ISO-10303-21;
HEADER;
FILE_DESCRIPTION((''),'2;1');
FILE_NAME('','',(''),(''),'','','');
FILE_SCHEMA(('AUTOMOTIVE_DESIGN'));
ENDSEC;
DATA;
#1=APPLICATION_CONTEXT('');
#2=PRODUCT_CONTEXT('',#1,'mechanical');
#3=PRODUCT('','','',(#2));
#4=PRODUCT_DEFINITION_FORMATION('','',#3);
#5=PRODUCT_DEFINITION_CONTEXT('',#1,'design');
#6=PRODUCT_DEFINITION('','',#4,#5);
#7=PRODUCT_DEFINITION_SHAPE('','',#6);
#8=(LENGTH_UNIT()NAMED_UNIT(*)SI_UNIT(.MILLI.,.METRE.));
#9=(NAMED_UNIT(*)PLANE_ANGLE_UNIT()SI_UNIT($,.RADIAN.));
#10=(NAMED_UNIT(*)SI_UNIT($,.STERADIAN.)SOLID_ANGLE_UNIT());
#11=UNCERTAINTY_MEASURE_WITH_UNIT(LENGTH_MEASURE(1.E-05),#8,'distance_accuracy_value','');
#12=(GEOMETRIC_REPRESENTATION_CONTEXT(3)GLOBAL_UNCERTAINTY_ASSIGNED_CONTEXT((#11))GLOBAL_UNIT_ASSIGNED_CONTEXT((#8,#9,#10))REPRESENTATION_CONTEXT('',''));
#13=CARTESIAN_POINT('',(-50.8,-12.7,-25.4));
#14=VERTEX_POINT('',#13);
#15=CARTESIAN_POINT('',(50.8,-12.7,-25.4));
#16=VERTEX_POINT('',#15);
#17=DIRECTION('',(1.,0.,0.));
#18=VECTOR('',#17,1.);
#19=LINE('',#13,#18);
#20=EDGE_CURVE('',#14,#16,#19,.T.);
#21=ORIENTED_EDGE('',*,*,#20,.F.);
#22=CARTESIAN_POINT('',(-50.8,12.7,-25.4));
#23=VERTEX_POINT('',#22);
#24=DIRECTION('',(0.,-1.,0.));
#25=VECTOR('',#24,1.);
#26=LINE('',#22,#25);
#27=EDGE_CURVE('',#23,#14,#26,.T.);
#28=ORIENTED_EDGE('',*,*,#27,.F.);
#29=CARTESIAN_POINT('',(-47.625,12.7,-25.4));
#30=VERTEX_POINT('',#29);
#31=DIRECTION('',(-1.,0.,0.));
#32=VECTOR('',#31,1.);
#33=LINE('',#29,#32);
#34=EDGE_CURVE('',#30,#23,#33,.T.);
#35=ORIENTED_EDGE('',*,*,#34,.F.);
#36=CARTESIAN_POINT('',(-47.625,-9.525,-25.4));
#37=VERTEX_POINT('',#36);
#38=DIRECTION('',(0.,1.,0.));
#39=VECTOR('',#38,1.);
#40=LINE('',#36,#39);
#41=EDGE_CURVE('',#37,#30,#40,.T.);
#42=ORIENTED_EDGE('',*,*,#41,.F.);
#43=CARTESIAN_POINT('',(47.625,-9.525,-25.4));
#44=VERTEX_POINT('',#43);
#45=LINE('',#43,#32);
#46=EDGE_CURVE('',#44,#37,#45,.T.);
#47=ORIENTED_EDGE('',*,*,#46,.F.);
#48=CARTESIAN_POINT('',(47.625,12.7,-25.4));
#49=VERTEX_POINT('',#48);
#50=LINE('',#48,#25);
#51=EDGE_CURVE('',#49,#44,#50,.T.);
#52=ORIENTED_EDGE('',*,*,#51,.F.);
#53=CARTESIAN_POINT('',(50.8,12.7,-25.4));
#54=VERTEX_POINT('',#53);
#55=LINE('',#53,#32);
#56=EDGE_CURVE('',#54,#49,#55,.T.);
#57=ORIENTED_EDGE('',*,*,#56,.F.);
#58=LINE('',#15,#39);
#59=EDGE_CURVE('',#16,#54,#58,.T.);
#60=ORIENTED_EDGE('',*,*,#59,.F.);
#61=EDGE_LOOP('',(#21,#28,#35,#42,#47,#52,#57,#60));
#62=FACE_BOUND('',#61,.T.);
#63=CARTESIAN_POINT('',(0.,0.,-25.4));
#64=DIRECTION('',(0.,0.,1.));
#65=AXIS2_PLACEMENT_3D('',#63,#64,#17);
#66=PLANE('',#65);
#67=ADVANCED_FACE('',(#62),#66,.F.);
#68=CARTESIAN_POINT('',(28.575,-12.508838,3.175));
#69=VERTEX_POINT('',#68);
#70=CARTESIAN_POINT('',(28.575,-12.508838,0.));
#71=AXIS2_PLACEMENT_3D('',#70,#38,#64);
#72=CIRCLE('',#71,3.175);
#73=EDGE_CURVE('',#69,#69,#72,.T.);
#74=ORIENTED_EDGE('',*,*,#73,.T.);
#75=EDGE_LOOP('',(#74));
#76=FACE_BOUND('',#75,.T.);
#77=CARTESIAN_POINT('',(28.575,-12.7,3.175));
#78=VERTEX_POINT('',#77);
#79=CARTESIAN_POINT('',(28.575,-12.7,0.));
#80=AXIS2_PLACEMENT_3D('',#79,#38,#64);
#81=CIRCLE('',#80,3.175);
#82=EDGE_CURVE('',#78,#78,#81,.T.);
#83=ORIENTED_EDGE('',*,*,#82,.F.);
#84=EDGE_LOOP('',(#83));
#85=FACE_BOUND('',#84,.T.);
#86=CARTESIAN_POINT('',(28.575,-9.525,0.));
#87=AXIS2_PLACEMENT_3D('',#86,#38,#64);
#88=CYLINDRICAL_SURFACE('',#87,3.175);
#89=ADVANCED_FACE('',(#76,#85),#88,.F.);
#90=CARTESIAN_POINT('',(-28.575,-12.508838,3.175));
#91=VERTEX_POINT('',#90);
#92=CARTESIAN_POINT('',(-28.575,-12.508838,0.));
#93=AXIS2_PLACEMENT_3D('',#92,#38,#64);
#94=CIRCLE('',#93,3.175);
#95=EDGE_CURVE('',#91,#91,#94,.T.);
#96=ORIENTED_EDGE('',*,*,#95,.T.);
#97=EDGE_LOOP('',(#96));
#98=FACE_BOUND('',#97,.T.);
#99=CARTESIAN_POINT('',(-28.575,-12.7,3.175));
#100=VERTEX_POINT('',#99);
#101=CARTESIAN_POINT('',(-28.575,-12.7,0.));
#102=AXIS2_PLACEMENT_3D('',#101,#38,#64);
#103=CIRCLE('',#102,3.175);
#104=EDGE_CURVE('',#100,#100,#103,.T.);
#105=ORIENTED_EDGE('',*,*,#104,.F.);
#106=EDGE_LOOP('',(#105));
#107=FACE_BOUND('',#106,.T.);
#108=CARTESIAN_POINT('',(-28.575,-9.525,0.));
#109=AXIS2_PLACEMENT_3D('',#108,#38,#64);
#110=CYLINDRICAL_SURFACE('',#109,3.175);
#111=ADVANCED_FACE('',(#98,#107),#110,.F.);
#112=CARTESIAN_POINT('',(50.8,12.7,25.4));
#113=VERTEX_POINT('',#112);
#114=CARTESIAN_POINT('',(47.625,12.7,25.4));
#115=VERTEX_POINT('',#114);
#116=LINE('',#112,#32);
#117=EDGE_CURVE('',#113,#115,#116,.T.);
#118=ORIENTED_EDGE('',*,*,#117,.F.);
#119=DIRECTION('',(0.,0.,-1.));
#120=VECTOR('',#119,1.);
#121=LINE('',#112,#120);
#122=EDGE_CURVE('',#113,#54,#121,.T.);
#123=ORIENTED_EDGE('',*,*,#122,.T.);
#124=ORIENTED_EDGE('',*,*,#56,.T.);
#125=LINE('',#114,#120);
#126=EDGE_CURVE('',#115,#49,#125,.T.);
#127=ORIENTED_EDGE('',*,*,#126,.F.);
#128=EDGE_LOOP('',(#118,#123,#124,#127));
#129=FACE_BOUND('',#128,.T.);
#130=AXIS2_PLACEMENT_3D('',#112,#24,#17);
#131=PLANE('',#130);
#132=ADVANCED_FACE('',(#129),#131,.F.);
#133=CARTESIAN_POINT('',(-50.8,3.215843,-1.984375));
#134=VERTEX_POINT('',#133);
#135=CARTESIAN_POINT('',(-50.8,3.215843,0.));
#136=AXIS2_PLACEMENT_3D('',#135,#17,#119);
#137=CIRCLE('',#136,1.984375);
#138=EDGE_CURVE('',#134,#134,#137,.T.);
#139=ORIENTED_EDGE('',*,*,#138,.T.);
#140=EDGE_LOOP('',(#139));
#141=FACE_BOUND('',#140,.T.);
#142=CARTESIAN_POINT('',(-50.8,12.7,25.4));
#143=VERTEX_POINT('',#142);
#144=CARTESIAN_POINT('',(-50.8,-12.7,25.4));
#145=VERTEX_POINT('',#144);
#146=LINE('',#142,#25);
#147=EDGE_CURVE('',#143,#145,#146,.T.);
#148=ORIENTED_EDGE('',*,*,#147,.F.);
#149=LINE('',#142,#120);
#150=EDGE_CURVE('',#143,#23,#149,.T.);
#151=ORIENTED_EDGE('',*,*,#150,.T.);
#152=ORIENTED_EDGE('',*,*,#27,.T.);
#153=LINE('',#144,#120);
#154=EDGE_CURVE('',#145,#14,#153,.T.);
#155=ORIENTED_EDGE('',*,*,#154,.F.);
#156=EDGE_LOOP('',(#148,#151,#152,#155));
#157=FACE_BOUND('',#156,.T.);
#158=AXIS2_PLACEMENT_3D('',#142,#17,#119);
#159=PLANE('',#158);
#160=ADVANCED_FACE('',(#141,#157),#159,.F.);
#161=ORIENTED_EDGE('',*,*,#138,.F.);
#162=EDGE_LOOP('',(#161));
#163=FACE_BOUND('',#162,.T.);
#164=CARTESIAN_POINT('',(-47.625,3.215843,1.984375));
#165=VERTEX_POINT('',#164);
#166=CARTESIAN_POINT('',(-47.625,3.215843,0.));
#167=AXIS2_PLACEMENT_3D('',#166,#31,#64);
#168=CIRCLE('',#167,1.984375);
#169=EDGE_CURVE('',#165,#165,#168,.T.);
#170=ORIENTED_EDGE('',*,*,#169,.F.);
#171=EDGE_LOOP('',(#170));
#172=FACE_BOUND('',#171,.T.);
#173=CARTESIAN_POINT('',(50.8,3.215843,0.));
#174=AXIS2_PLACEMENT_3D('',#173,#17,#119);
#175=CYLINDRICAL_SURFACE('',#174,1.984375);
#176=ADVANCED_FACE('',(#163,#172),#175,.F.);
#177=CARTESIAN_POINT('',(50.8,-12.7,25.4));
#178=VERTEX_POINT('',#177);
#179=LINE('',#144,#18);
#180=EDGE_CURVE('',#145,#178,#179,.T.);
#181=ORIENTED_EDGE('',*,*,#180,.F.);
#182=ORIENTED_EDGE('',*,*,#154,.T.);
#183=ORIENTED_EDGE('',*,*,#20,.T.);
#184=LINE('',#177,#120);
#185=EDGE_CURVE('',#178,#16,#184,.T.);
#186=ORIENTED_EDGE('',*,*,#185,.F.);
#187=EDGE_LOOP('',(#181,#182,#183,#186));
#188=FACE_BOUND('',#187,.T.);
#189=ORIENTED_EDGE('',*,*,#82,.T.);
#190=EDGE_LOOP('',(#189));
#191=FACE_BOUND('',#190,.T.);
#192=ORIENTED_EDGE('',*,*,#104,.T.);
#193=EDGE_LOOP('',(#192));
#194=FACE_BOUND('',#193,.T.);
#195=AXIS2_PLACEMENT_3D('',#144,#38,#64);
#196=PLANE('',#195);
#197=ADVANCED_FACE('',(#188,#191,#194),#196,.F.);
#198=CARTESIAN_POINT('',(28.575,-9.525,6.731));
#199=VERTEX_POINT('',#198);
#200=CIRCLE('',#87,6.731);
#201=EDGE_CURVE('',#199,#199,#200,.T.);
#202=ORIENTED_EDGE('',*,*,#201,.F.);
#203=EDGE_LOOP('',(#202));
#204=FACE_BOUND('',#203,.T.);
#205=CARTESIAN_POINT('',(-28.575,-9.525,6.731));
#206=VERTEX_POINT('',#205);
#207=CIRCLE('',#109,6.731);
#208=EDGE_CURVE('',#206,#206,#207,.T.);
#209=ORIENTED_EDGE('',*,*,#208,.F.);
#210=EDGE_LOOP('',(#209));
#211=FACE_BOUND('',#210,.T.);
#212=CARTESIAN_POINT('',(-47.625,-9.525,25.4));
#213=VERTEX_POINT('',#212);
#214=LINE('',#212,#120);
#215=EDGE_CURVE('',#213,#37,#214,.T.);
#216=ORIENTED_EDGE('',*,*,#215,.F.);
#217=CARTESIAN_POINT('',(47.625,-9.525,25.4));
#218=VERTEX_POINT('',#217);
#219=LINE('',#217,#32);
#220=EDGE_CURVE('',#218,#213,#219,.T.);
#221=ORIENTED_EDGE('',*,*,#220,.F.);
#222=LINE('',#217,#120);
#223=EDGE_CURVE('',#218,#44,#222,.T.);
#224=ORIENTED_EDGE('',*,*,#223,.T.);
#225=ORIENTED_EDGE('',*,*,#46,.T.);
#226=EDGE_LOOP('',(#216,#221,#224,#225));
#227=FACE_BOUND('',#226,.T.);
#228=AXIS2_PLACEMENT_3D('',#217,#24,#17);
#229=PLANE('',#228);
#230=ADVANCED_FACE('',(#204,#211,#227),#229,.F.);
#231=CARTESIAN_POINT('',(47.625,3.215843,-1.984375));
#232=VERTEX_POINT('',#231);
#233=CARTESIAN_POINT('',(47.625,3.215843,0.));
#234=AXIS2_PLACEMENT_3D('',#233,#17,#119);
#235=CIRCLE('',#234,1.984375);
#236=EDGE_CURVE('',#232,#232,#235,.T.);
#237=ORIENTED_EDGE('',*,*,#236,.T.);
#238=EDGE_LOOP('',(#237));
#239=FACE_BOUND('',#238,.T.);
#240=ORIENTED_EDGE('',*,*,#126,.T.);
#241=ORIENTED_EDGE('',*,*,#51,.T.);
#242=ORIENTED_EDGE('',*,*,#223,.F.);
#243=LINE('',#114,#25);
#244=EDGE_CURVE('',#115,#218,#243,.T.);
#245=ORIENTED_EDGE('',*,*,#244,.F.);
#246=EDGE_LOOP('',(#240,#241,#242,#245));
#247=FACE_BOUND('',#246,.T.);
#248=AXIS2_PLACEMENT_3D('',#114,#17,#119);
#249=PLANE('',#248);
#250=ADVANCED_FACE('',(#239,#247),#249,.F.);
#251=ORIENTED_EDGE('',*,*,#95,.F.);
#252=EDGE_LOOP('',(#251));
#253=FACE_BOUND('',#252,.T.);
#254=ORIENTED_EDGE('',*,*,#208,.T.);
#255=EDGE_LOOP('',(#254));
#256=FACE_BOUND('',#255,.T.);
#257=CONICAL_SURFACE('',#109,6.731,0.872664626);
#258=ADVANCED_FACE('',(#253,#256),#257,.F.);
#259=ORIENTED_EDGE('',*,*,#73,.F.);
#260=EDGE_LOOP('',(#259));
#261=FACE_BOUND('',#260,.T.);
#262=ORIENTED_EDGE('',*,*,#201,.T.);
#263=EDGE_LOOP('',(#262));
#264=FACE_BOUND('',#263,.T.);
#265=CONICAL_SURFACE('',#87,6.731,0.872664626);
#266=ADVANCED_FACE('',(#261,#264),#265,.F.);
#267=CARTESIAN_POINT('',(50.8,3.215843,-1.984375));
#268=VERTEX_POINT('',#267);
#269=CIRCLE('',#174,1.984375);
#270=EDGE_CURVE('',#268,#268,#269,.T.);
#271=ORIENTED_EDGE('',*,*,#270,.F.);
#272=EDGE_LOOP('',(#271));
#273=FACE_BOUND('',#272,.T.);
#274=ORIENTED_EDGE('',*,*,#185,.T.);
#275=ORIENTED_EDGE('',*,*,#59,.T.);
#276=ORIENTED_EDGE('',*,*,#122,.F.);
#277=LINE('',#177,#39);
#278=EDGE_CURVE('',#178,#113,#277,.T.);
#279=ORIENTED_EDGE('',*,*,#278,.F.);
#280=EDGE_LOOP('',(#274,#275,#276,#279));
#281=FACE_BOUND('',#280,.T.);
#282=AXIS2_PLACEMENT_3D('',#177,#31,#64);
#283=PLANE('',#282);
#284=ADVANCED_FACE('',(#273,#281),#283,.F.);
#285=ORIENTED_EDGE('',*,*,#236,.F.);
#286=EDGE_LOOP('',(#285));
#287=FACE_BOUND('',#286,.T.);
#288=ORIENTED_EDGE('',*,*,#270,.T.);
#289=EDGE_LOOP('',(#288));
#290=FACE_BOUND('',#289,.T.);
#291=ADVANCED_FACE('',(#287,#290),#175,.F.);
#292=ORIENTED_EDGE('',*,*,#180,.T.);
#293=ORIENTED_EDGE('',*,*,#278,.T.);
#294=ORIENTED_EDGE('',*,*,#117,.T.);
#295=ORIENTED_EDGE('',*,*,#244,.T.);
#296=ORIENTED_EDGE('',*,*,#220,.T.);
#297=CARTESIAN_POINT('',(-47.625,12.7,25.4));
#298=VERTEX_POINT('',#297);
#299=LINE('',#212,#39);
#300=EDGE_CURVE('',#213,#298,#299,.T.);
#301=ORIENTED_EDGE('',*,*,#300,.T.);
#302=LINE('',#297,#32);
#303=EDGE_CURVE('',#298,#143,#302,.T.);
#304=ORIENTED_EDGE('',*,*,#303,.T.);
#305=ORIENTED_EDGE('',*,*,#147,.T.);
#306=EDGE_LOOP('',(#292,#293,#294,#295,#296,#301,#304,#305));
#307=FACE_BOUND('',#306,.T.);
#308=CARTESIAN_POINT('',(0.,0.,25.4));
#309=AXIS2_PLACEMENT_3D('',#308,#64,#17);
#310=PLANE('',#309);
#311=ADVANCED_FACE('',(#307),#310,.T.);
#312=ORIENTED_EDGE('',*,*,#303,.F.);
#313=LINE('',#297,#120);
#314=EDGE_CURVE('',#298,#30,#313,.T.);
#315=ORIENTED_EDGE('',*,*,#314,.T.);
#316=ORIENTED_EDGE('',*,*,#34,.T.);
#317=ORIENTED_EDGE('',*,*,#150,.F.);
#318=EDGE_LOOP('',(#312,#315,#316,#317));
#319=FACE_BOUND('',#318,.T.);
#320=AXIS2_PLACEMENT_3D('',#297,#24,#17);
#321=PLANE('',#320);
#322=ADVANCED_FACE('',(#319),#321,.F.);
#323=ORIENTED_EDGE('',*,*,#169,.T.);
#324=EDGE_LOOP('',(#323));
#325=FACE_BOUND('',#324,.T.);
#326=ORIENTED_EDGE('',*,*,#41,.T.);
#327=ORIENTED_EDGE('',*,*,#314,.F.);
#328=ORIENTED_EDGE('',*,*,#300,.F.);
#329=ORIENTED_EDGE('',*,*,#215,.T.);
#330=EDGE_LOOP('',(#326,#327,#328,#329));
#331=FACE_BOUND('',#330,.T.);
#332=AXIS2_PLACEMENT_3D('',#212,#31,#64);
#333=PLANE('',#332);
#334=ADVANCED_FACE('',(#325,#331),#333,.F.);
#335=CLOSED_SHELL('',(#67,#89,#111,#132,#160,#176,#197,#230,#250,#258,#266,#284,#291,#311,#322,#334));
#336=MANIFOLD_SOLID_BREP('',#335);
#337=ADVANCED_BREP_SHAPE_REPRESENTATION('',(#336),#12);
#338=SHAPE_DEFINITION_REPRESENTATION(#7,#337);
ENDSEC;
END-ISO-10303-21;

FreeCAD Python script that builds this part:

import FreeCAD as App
import Part
import Sketcher
Q = App.Units.Quantity


def add_polygon(sketch, points):
    """Adds a closed chain of lines whose ends are joined by coincident constraints."""
    first, n = sketch.GeometryCount, len(points)
    for a, b in zip(points, points[1:] + points[:1]):
        sketch.addGeometry(Part.LineSegment(App.Vector(*a, 0), App.Vector(*b, 0)), False)
    for i in range(n):
        sketch.addConstraint(Sketcher.Constraint("Coincident", first + i, 2, first + (i + 1) % n, 1))

doc = App.newDocument("Part")
params = doc.addObject("Spreadsheet::Sheet", "Params")
for row, (alias, value) in enumerate([
    ("sketch1_width", "4 in"),
    ("sketch1_height", "1 in"),
    ("sketch1_width2", "3.75 in"),
    ("sketch1_height2", "0.875 in"),
    ("pad1_length", "2 in"),
    ("sketch2_width", "0.125 in"),
    ("sketch2_height", "0.265 in"),
    ("groove_angle", "360 deg"),
    ("linearpattern_pitch", "2.25 in"),
    ("sketch3_diameter", "0.15625 in"),
    ("hole_diameter", "0.15625 in"),
], start=1):
    params.set(f"A{row}", alias)
    params.set(f"B{row}", "=" + value)
    params.setAlias(f"B{row}", alias)

body = doc.addObject("PartDesign::Body", "Body")

sketch1 = body.newObject("Sketcher::SketchObject", "Sketch")
sketch1.AttachmentSupport = (doc.getObject("XY_Plane"), [""])
sketch1.MapMode = "FlatFace"
add_polygon(sketch1, [(-50.8, 12.7), (-50.8, -12.7), (50.8, -12.7), (50.8, 12.7), (47.625, 12.7), (47.625, -9.525), (-47.625, -9.525), (-47.625, 12.7)])
sketch1.addConstraint([
    Sketcher.Constraint("Vertical", 0),
    Sketcher.Constraint("Horizontal", 1),
    Sketcher.Constraint("Vertical", 2),
    Sketcher.Constraint("Horizontal", 3),
    Sketcher.Constraint("Vertical", 4),
    Sketcher.Constraint("Horizontal", 5),
    Sketcher.Constraint("Vertical", 6),
    Sketcher.Constraint("Horizontal", 7),
    Sketcher.Constraint("Symmetric", 0, 2, 2, 2, -1, 1),
    Sketcher.Constraint("Symmetric", 3, 2, 6, 2, -2),
    Sketcher.Constraint("DistanceX", 1, 1, 1, 2, Q("4 in")),
    Sketcher.Constraint("DistanceY", 0, 2, 0, 1, Q("1 in")),
    Sketcher.Constraint("DistanceX", 5, 2, 5, 1, Q("3.75 in")),
    Sketcher.Constraint("DistanceY", 4, 2, 4, 1, Q("0.875 in")),
])
sketch1.setExpression("Constraints[18]", "Params.sketch1_width")
sketch1.setExpression("Constraints[19]", "Params.sketch1_height")
sketch1.setExpression("Constraints[20]", "Params.sketch1_width2")
sketch1.setExpression("Constraints[21]", "Params.sketch1_height2")
pad1 = body.newObject("PartDesign::Pad", "Pad")
pad1.Profile = sketch1
pad1.setExpression("Length", "Params.pad1_length")
pad1.Midplane = True

sketch2 = body.newObject("Sketcher::SketchObject", "Sketch001")
sketch2.AttachmentSupport = (doc.getObject("YZ_Plane"), [""])
sketch2.MapMode = "FlatFace"
sketch2.AttachmentOffset = App.Placement(App.Vector(0, 0, -1.125 * 25.4), App.Rotation())
add_polygon(sketch2, [(-12.7, 0), (-9.525, 0), (-9.525, 6.731), (-12.508838, 3.175), (-12.7, 3.175)])
sketch2.addConstraint([
    Sketcher.Constraint("Horizontal", 0),
    Sketcher.Constraint("Vertical", 1),
    Sketcher.Constraint("Horizontal", 3),
    Sketcher.Constraint("Vertical", 4),
    Sketcher.Constraint("PointOnObject", 0, 2, -1),
    Sketcher.Constraint("Equal", 0, 4),
    Sketcher.Constraint("Angle", 2, Q("-130 deg")),
    Sketcher.Constraint("DistanceX", 3, 2, -1, 1, Q("0.5 in")),
    Sketcher.Constraint("DistanceX", 0, 1, 0, 2, Q("0.125 in")),
    Sketcher.Constraint("DistanceY", 1, 1, 1, 2, Q("0.265 in")),
])
sketch2.setExpression("Constraints[13]", "Params.sketch2_width")
sketch2.setExpression("Constraints[14]", "Params.sketch2_height")
groove = body.newObject("PartDesign::Groove", "Groove")
groove.Profile = sketch2
groove.ReferenceAxis = (sketch2, ["H_Axis"])
groove.setExpression("Angle", "Params.groove_angle")
doc.recompute()

linearpattern = body.newObject("PartDesign::LinearPattern", "LinearPattern")
linearpattern.Originals = [groove]
linearpattern.Direction = (doc.getObject("X_Axis"), [""])
linearpattern.Mode = "offset"
linearpattern.setExpression("Offset", "Params.linearpattern_pitch")
linearpattern.Occurrences = 2
body.Tip = linearpattern

sketch3 = body.newObject("Sketcher::SketchObject", "Sketch002")
sketch3.AttachmentSupport = (doc.getObject("YZ_Plane"), [""])
sketch3.MapMode = "FlatFace"
sketch3.AttachmentOffset = App.Placement(App.Vector(0, 0, 2 * 25.4), App.Rotation())
sketch3.addGeometry(Part.Circle(App.Vector(3.215843, 0, 0), App.Vector(0, 0, 1), 1.984375), False)
sketch3.addConstraint([
    Sketcher.Constraint("PointOnObject", 0, 3, -1),
    Sketcher.Constraint("Diameter", 0, Q("0.15625 in")),
    Sketcher.Constraint("DistanceX", -1, 1, 0, 3, 3.215843),
])
sketch3.setExpression("Constraints[1]", "Params.sketch3_diameter")
doc.recompute()
hole = body.newObject("PartDesign::Hole", "Hole")
hole.Profile = sketch3
hole.ThreadType = "None"
hole.setExpression("Diameter", "Params.hole_diameter")
hole.DepthType = "ThroughAll"

doc.recompute()
